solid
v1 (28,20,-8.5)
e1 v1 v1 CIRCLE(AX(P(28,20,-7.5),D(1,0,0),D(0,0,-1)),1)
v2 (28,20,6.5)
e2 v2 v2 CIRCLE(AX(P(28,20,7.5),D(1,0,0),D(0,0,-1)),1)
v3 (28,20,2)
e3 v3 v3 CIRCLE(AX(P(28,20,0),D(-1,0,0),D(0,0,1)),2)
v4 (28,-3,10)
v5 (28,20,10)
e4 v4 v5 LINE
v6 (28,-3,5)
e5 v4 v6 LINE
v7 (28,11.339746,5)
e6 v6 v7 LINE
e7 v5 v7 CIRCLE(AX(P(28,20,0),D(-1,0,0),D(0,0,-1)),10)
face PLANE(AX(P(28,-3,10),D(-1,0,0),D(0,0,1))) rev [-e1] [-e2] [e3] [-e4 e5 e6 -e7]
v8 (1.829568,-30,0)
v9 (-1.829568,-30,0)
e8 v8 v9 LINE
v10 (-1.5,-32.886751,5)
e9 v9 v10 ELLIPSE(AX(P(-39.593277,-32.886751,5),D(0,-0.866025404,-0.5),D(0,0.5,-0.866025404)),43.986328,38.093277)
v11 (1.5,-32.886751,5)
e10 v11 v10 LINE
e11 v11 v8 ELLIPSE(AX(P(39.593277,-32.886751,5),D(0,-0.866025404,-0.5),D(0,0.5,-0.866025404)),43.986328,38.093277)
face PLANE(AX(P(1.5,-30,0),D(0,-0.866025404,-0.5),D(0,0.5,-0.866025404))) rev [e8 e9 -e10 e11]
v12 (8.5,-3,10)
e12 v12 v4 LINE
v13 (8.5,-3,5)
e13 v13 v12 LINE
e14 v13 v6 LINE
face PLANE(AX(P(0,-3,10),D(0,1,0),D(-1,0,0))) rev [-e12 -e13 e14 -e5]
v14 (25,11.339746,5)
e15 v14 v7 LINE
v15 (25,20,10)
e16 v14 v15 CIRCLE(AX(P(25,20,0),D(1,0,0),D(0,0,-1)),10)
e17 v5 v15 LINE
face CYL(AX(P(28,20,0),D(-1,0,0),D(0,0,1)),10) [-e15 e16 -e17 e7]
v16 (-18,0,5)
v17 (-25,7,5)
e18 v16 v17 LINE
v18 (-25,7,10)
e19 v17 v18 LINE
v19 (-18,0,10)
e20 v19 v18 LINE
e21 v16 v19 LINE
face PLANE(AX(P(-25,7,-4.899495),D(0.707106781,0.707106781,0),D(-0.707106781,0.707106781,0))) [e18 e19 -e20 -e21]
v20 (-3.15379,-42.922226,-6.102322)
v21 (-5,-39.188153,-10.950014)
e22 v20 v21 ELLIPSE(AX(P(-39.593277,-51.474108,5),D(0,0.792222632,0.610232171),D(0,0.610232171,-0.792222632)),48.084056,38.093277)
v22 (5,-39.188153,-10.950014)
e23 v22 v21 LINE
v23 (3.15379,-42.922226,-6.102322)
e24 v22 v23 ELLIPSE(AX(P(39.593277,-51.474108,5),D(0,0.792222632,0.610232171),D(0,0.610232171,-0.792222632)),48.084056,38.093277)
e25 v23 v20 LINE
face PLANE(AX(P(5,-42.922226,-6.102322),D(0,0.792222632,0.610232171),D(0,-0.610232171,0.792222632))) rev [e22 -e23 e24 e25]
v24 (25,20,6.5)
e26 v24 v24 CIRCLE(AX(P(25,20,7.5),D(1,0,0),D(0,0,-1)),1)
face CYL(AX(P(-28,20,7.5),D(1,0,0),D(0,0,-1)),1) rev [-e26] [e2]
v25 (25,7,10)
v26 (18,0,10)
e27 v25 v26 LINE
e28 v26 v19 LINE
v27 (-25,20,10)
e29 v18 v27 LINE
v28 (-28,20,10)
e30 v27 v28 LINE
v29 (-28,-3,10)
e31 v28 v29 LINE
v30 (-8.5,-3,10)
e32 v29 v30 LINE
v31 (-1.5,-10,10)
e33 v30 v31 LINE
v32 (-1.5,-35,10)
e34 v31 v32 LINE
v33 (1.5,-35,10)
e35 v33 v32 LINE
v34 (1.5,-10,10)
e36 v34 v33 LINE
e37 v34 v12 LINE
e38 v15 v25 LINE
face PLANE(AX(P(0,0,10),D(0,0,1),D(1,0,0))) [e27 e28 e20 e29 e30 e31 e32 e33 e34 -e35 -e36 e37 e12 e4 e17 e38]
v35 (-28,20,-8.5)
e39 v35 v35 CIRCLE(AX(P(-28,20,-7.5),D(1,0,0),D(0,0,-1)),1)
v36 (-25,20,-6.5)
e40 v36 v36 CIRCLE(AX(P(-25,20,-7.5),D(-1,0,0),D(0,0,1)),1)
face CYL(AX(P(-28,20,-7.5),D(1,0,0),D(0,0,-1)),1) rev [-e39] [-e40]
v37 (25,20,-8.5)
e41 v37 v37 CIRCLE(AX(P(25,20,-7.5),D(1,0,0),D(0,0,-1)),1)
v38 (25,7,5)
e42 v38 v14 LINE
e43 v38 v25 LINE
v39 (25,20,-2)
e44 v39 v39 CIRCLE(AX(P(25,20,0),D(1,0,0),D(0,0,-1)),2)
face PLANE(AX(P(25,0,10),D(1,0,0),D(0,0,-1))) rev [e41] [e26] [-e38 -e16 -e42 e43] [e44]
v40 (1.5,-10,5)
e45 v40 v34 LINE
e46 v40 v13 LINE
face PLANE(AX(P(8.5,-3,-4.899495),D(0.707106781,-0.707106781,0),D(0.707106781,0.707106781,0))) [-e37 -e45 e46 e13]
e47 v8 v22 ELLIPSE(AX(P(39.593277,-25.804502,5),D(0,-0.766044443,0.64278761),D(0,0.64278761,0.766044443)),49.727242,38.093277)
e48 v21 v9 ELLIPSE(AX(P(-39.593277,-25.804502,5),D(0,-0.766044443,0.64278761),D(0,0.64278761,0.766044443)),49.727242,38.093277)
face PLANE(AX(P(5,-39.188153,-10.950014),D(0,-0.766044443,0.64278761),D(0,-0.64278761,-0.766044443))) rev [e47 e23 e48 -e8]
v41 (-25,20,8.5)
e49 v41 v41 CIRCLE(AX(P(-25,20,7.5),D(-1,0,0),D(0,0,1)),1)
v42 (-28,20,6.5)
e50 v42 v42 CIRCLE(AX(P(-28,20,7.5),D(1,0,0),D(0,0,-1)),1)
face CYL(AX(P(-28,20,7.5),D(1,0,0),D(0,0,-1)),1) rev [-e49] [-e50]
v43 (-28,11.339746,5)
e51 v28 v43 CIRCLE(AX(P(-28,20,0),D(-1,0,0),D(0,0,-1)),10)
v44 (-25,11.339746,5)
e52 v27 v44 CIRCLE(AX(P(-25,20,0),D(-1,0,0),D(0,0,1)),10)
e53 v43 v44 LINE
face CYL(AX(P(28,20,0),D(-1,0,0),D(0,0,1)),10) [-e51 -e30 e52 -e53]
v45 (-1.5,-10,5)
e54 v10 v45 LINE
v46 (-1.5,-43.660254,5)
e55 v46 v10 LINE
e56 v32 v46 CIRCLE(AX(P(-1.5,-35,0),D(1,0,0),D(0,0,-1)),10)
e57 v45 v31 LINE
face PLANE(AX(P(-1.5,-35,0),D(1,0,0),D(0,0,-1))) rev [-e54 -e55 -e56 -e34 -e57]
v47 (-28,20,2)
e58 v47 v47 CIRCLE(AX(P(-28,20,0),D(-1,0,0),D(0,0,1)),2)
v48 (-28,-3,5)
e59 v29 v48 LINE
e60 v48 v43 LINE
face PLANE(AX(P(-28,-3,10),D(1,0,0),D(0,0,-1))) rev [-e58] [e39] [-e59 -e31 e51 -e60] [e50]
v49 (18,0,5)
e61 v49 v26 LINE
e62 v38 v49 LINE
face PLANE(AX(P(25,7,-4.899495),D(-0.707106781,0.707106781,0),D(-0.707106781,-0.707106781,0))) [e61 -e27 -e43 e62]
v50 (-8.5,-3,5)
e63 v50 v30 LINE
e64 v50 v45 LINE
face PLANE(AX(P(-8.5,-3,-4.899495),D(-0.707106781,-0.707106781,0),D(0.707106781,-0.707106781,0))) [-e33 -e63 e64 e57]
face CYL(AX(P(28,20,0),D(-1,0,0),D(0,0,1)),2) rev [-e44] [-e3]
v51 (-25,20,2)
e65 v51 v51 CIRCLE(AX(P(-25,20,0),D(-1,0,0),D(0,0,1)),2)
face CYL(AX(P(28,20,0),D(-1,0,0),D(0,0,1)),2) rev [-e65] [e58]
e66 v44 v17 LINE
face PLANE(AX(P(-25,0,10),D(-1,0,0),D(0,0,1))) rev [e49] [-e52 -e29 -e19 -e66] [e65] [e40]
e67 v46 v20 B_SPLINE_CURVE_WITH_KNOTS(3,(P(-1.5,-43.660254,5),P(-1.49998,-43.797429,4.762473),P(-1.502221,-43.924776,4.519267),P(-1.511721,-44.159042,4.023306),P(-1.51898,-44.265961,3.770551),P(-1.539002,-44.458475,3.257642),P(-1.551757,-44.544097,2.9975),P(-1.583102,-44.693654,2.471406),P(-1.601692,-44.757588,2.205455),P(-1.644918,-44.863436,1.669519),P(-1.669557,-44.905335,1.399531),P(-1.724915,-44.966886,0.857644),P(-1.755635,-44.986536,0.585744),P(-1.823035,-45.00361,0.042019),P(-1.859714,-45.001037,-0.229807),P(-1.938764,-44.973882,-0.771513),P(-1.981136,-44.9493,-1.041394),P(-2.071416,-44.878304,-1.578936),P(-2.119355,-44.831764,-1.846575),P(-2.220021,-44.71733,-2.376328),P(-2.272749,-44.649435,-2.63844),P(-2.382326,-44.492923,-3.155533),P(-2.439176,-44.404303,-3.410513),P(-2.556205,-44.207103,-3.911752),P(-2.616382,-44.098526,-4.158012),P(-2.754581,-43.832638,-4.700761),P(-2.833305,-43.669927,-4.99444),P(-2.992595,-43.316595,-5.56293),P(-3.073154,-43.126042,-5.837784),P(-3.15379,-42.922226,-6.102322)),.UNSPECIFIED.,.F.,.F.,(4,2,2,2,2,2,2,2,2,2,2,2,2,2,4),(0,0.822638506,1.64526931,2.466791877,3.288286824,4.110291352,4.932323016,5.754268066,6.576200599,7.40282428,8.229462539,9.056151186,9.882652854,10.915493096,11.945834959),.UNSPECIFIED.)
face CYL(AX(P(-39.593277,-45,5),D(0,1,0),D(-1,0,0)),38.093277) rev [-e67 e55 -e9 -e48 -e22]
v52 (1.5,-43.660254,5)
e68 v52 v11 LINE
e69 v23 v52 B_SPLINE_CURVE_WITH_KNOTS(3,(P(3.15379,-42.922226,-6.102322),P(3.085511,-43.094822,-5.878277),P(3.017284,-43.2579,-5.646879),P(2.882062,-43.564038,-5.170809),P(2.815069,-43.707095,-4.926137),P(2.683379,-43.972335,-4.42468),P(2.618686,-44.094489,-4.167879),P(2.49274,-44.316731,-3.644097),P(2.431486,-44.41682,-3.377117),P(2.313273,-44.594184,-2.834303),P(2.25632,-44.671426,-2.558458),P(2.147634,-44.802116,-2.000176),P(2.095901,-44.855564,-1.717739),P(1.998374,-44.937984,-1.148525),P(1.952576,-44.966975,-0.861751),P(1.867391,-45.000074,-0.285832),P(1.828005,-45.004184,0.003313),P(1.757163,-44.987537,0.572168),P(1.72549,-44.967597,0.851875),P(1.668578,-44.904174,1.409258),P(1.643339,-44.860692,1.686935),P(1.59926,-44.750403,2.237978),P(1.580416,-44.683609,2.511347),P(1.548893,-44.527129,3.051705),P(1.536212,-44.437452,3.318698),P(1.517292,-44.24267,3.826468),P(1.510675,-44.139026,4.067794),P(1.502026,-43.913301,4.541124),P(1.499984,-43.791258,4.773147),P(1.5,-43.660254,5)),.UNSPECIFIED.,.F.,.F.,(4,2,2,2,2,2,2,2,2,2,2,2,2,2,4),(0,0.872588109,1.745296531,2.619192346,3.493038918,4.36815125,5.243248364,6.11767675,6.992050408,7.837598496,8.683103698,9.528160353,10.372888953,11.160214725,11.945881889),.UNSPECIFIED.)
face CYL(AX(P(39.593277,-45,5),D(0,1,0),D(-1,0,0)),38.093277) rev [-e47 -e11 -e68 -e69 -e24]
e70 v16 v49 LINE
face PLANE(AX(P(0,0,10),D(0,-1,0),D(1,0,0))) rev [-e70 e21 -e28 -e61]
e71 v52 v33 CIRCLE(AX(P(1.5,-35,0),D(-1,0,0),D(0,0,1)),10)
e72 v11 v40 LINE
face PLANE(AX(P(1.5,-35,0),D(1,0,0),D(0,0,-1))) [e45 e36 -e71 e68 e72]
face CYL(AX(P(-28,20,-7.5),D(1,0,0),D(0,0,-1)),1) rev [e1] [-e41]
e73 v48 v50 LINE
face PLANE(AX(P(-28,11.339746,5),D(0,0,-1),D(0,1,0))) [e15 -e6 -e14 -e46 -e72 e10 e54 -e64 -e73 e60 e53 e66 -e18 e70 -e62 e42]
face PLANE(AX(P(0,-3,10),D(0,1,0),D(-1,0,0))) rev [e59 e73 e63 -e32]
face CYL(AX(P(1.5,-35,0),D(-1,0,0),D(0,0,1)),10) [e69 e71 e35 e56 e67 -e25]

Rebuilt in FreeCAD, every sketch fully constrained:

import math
import FreeCAD as App
import Part
import Sketcher

V = App.Vector
Q = App.Units.Quantity


def add_polygon(sketch, points):
    """Adds a closed chain of lines whose ends are joined by coincident constraints."""
    first, n = sketch.GeometryCount, len(points)
    for a, b in zip(points, points[1:] + points[:1]):
        sketch.addGeometry(Part.LineSegment(App.Vector(*a, 0), App.Vector(*b, 0)), False)
    for i in range(n):
        sketch.addConstraint(Sketcher.Constraint("Coincident", first + i, 2, first + (i + 1) % n, 1))

doc = App.newDocument("Part")
body = doc.addObject("PartDesign::Body", "Body")

sketch1 = body.newObject("Sketcher::SketchObject", "Sketch")
sketch1.AttachmentSupport = (doc.getObject("XY_Plane"), [""])
sketch1.MapMode = "FlatFace"
add_polygon(sketch1, [(-25, 0), (-25, 30), (-28, 30), (-28, -3), (28, -3), (28, 30), (25, 30), (25, 0)])
sketch1.addConstraint([
    Sketcher.Constraint("Vertical", 0),
    Sketcher.Constraint("Horizontal", 1),
    Sketcher.Constraint("Vertical", 2),
    Sketcher.Constraint("Horizontal", 3),
    Sketcher.Constraint("Vertical", 4),
    Sketcher.Constraint("Horizontal", 5),
    Sketcher.Constraint("Vertical", 6),
    Sketcher.Constraint("Horizontal", 7),
    Sketcher.Constraint("Symmetric", 6, 2, 7, 2, -1, 1),
    Sketcher.Constraint("Symmetric", 1, 2, 4, 2, -2),
    Sketcher.Constraint("DistanceX", 1, 2, 1, 1, 3.0),
    Sketcher.Constraint("DistanceX", 3, 1, 3, 2, 56.0),
    Sketcher.Constraint("DistanceY", 0, 1, 0, 2, 30.0),
    Sketcher.Constraint("DistanceY", 2, 2, 2, 1, 33.0),
])
pad1 = body.newObject("PartDesign::Pad", "Pad")
pad1.Profile = sketch1
pad1.Length = 20
pad1.Midplane = True

sketch2 = body.newObject("Sketcher::SketchObject", "Sketch001")
sketch2.AttachmentSupport = (doc.getObject("YZ_Plane"), [""])
sketch2.MapMode = "FlatFace"
sketch2.AttachmentOffset = App.Placement(V(0, 0, -28), App.Rotation())
add_polygon(sketch2, [(37.8, -17.8), (-10.8, -17.8), (-10.8, 17.8), (37.8, 17.8)])
sketch2.addGeometry(Part.LineSegment(V(20, 10, 0), V(-3, 10, 0)), False)
sketch2.addGeometry(Part.LineSegment(V(-3, 10, 0), V(-3, -10, 0)), False)
sketch2.addGeometry(Part.LineSegment(V(-3, -10, 0), V(20, -10, 0)), False)
sketch2.addGeometry(Part.ArcOfCircle(Part.Circle(V(20, 0, 0), V(0, 0, 1), 10), math.radians(-90), math.radians(90)), False)
sketch2.addGeometry(Part.Circle(V(20, 0, 0), V(0, 0, 1), 2), False)
sketch2.addConstraint([
    Sketcher.Constraint("Coincident", 4, 2, 5, 1),
    Sketcher.Constraint("Coincident", 5, 2, 6, 1),
    Sketcher.Constraint("Tangent", 6, 2, 7, 1),
    Sketcher.Constraint("Tangent", 7, 2, 4, 1),
    Sketcher.Constraint("Horizontal", 0),
    Sketcher.Constraint("Vertical", 1),
    Sketcher.Constraint("Horizontal", 2),
    Sketcher.Constraint("Vertical", 3),
    Sketcher.Constraint("Horizontal", 4),
    Sketcher.Constraint("Vertical", 5),
    Sketcher.Constraint("Horizontal", 6),
    Sketcher.Constraint("Coincident", 8, 3, 7, 3),
    Sketcher.Constraint("PointOnObject", 7, 3, -1),
    Sketcher.Constraint("Diameter", 8, 4.0),
    Sketcher.Constraint("Radius", 7, 10.0),
    Sketcher.Constraint("DistanceX", 4, 2, 4, 1, 23.0),
    Sketcher.Constraint("DistanceX", -1, 1, 7, 3, 20.0),
    Sketcher.Constraint("DistanceX", 0, 2, 0, 1, 48.602),
    Sketcher.Constraint("DistanceY", 1, 1, 1, 2, 35.602),
    Sketcher.Constraint("DistanceX", 0, 2, -1, 1, 10.801),
    Sketcher.Constraint("DistanceY", 0, 2, -1, 1, 17.801),
])
pocket1 = body.newObject("PartDesign::Pocket", "Pocket")
pocket1.Profile = sketch2
pocket1.Length = 65.311741
pocket1.Reversed = True

sketch3 = body.newObject("Sketcher::SketchObject", "Sketch002")
sketch3.AttachmentSupport = (doc.getObject("YZ_Plane"), [""])
sketch3.MapMode = "FlatFace"
sketch3.AttachmentOffset = App.Placement(V(0, 0, 28), App.Rotation())
add_polygon(sketch3, [(38, 18), (-11, 18), (-11, -18), (38, -18)])
sketch3.addGeometry(Part.ArcOfCircle(Part.Circle(V(20, 0, 0), V(0, 0, 1), 10), math.radians(150), math.radians(450)), False)
sketch3.addGeometry(Part.LineSegment(V(11, 5, 0), V(-3, 5, 0)), False)
sketch3.addGeometry(Part.LineSegment(V(-3, 5, 0), V(-3, 10, 0)), False)
sketch3.addGeometry(Part.LineSegment(V(-3, 10, 0), V(20, 10, 0)), False)
sketch3.addConstraint([
    Sketcher.Constraint("Coincident", 4, 1, 5, 1),
    Sketcher.Constraint("Coincident", 5, 2, 6, 1),
    Sketcher.Constraint("Coincident", 6, 2, 7, 1),
    Sketcher.Constraint("Tangent", 7, 2, 4, 2),
    Sketcher.Constraint("Horizontal", 0),
    Sketcher.Constraint("Vertical", 1),
    Sketcher.Constraint("Horizontal", 2),
    Sketcher.Constraint("Vertical", 3),
    Sketcher.Constraint("Horizontal", 5),
    Sketcher.Constraint("Vertical", 6),
    Sketcher.Constraint("Horizontal", 7),
    Sketcher.Constraint("PointOnObject", 4, 3, -1),
    Sketcher.Constraint("Radius", 4, 10.0),
    Sketcher.Constraint("DistanceX", 7, 1, 7, 2, 23.0),
    Sketcher.Constraint("DistanceY", 6, 1, 6, 2, 5.0),
    Sketcher.Constraint("DistanceX", -1, 1, 4, 3, 20.0),
    Sketcher.Constraint("DistanceX", 0, 2, 0, 1, 48.602),
    Sketcher.Constraint("DistanceY", 1, 2, 1, 1, 35.602),
    Sketcher.Constraint("DistanceX", 0, 2, -1, 1, 10.801),
    Sketcher.Constraint("DistanceY", -1, 1, 0, 2, 17.801),
])
pocket2 = body.newObject("PartDesign::Pocket", "Pocket001")
pocket2.Profile = sketch3
pocket2.Type = "ThroughAll"

sketch4 = body.newObject("Sketcher::SketchObject", "Sketch003")
sketch4.AttachmentSupport = (doc.getObject("YZ_Plane"), [""])
sketch4.MapMode = "FlatFace"
sketch4.addGeometry([
    Part.LineSegment(V(-3, 5, 0), V(-3, 10, 0)),
    Part.LineSegment(V(-3, 10, 0), V(-35, 10, 0)),
    Part.ArcOfCircle(Part.Circle(V(-35, 0, 0), V(0, 0, 1), 10), math.radians(90), math.radians(180)),
    Part.LineSegment(V(-45, 0, 0), V(-30, 0, 0)),
    Part.LineSegment(V(-30, 0, 0), V(-33, 5, 0)),
    Part.LineSegment(V(-33, 5, 0), V(-3, 5, 0)),
], False)
sketch4.addConstraint([
    Sketcher.Constraint("Coincident", 0, 2, 1, 1),
    Sketcher.Constraint("Tangent", 1, 2, 2, 1),
    Sketcher.Constraint("Coincident", 2, 2, 3, 1),
    Sketcher.Constraint("Coincident", 3, 2, 4, 1),
    Sketcher.Constraint("Coincident", 4, 2, 5, 1),
    Sketcher.Constraint("Coincident", 5, 2, 0, 1),
    Sketcher.Constraint("Vertical", 0),
    Sketcher.Constraint("Horizontal", 1),
    Sketcher.Constraint("Horizontal", 3),
    Sketcher.Constraint("Horizontal", 5),
    Sketcher.Constraint("PointOnObject", 2, 3, -1),
    Sketcher.Constraint("PointOnObject", 2, 2, -1),
    Sketcher.Constraint("Radius", 2, 9.999999),
    Sketcher.Constraint("DistanceX", 1, 2, 1, 1, 32.0),
    Sketcher.Constraint("DistanceX", 3, 1, 3, 2, 15.0),
    Sketcher.Constraint("DistanceY", 0, 1, 0, 2, 5.0),
    Sketcher.Constraint("Angle", 4, Q("119.999997 deg")),
    Sketcher.Constraint("DistanceX", 2, 3, -1, 1, 35.000001),
])
pad2 = body.newObject("PartDesign::Pad", "Pad001")
pad2.Profile = sketch4
pad2.Length = 3
pad2.Midplane = True

sketch5 = body.newObject("Sketcher::SketchObject", "Sketch004")
sketch5.AttachmentSupport = (doc.getObject("YZ_Plane"), [""])
sketch5.MapMode = "FlatFace"
sketch5.addGeometry([
    Part.LineSegment(V(-30, 0, 0), V(-32.9, 5, 0)),
    Part.LineSegment(V(-32.9, 5, 0), V(-32.9, 10, 0)),
    Part.LineSegment(V(-32.9, 10, 0), V(-35, 10, 0)),
    Part.ArcOfCircle(Part.Circle(V(-35, 0, 0), V(0, 0, 1), 10), math.radians(90), math.radians(218)),
    Part.LineSegment(V(-42.9, -6.1, 0), V(-39.2, -11, 0)),
    Part.LineSegment(V(-39.2, -11, 0), V(-30, 0, 0)),
], False)
sketch5.addConstraint([
    Sketcher.Constraint("Coincident", 0, 2, 1, 1),
    Sketcher.Constraint("Coincident", 1, 2, 2, 1),
    Sketcher.Constraint("Tangent", 2, 2, 3, 1),
    Sketcher.Constraint("Tangent", 3, 2, 4, 1),
    Sketcher.Constraint("Coincident", 4, 2, 5, 1),
    Sketcher.Constraint("Coincident", 5, 2, 0, 1),
    Sketcher.Constraint("Vertical", 1),
    Sketcher.Constraint("Horizontal", 2),
    Sketcher.Constraint("PointOnObject", 3, 3, -1),
    Sketcher.Constraint("PointOnObject", 5, 2, -1),
    Sketcher.Constraint("Radius", 3, 10.0),
    Sketcher.Constraint("DistanceY", 1, 1, 1, 2, 5.0),
    Sketcher.Constraint("Angle", 0, Q("119.999997 deg")),
    Sketcher.Constraint("Angle", 5, Q("49.999999 deg")),
    Sketcher.Constraint("DistanceX", 3, 3, -1, 1, 35.0),
    Sketcher.Constraint("DistanceX", 5, 2, -1, 1, 30.0),
    Sketcher.Constraint("Distance", 5, 14.294228),
])
pad3 = body.newObject("PartDesign::Pad", "Pad002")
pad3.Profile = sketch5
pad3.Length = 10
pad3.Midplane = True

sketch6 = body.newObject("Sketcher::SketchObject", "Sketch005")
sketch6.AttachmentSupport = (doc.getObject("XZ_Plane"), [""])
sketch6.MapMode = "FlatFace"
sketch6.AttachmentOffset = App.Placement(V(0, 0, 3), App.Rotation())
add_polygon(sketch6, [(-38.6, 20.6), (-38.6, -21.5), (38.6, -21.5), (38.6, 20.6)])
sketch6.addGeometry(Part.LineSegment(V(-1.5, 5, 0), V(-1.5, 10, 0)), False)
sketch6.addGeometry(Part.LineSegment(V(-1.5, 10, 0), V(1.5, 10, 0)), False)
sketch6.addGeometry(Part.LineSegment(V(1.5, 10, 0), V(1.5, 5, 0)), False)
sketch6.addGeometry(Part.ArcOfCircle(Part.Circle(V(39.6, 5, 0), V(0, 0, 1), 38.1), math.radians(180), math.radians(205)), False)
sketch6.addGeometry(Part.LineSegment(V(5, -11, 0), V(-5, -11, 0)), False)
sketch6.addGeometry(Part.ArcOfCircle(Part.Circle(V(-39.6, 5, 0), V(0, 0, 1), 38.1), math.radians(-25), math.radians(0)), False)
sketch6.addConstraint([
    Sketcher.Constraint("Coincident", 4, 2, 5, 1),
    Sketcher.Constraint("Coincident", 5, 2, 6, 1),
    Sketcher.Constraint("Tangent", 6, 2, 7, 1),
    Sketcher.Constraint("Coincident", 7, 2, 8, 1),
    Sketcher.Constraint("Coincident", 8, 2, 9, 1),
    Sketcher.Constraint("Tangent", 9, 2, 4, 1),
    Sketcher.Constraint("Vertical", 0),
    Sketcher.Constraint("Horizontal", 1),
    Sketcher.Constraint("Vertical", 2),
    Sketcher.Constraint("Horizontal", 3),
    Sketcher.Constraint("Vertical", 4),
    Sketcher.Constraint("Horizontal", 5),
    Sketcher.Constraint("Vertical", 6),
    Sketcher.Constraint("Horizontal", 8),
    Sketcher.Constraint("Equal", 7, 9),
    Sketcher.Constraint("Symmetric", 7, 3, 9, 3, -2),
    Sketcher.Constraint("DistanceX", 5, 1, 5, 2, 3.0),
    Sketcher.Constraint("DistanceX", 8, 2, 8, 1, 10.0),
    Sketcher.Constraint("DistanceY", 4, 1, 4, 2, 5.0),
    Sketcher.Constraint("DistanceY", -1, 1, 7, 3, 4.999999),
    Sketcher.Constraint("DistanceX", 1, 1, 1, 2, 77.184),
    Sketcher.Constraint("DistanceY", 0, 2, 0, 1, 42.134),
    Sketcher.Constraint("DistanceX", 0, 2, -1, 1, 38.592),
    Sketcher.Constraint("DistanceY", 0, 2, -1, 1, 21.542),
    Sketcher.Constraint("Radius", 7, 38.093275),
])
pocket3 = body.newObject("PartDesign::Pocket", "Pocket002")
pocket3.Profile = sketch6
pocket3.Type = "ThroughAll"
pocket3.Reversed = True

sketch7 = body.newObject("Sketcher::SketchObject", "Sketch006")
sketch7.AttachmentSupport = (doc.getObject("YZ_Plane"), [""])
sketch7.MapMode = "FlatFace"
sketch7.AttachmentOffset = App.Placement(V(0, 0, 28), App.Rotation())
sketch7.addGeometry([
    Part.Circle(V(20, 7.5, 0), V(0, 0, 1), 1),
    Part.Circle(V(20, -7.5, 0), V(0, 0, 1), 1),
], False)
sketch7.addConstraint([
    Sketcher.Constraint("Equal", 0, 1),
    Sketcher.Constraint("Symmetric", 0, 3, 1, 3, -1),
    Sketcher.Constraint("Diameter", 0, 2.0),
    Sketcher.Constraint("DistanceX", -1, 1, 0, 3, 20.0),
    Sketcher.Constraint("DistanceY", 1, 3, 0, 3, 15.0),
])
pocket4 = body.newObject("PartDesign::Pocket", "Pocket003")
pocket4.Profile = sketch7
pocket4.Type = "ThroughAll"

sketch8 = body.newObject("Sketcher::SketchObject", "Sketch007")
sketch8.AttachmentSupport = (doc.getObject("XY_Plane"), [""])
sketch8.MapMode = "FlatFace"
sketch8.AttachmentOffset = App.Placement(V(0, 0, 10), App.Rotation())
add_polygon(sketch8, [(-25, 7), (-25, 0), (-18, 0)])
add_polygon(sketch8, [(-2, -3), (-8, -3), (-2, -10)])
add_polygon(sketch8, [(2, -3), (2, -10), (8, -3)])
add_polygon(sketch8, [(18, 0), (25, 0), (25, 7)])
sketch8.addConstraint([
    Sketcher.Constraint("Vertical", 0),
    Sketcher.Constraint("Horizontal", 1),
    Sketcher.Constraint("Horizontal", 3),
    Sketcher.Constraint("Vertical", 5),
    Sketcher.Constraint("Vertical", 6),
    Sketcher.Constraint("Horizontal", 8),
    Sketcher.Constraint("Horizontal", 9),
    Sketcher.Constraint("Vertical", 10),
    Sketcher.Constraint("Symmetric", 0, 2, 9, 2, -1, 1),
    Sketcher.Constraint("Symmetric", 4, 2, 6, 2, -2),
    Sketcher.Constraint("Symmetric", 3, 2, 7, 2, -2),
    Sketcher.Constraint("Symmetric", 1, 2, 11, 2, -2),
    Sketcher.Constraint("Parallel", 2, 4),
    Sketcher.Constraint("Perpendicular", 4, 7),
    Sketcher.Constraint("Parallel", 7, 11),
    Sketcher.Constraint("Equal", 1, 3),
    Sketcher.Constraint("DistanceX", 1, 1, 1, 2, 7.0),
    Sketcher.Constraint("DistanceX", 0, 2, -1, 1, 25.0),
    Sketcher.Constraint("DistanceY", 3, 2, -1, 1, 3.0),
    Sketcher.Constraint("DistanceX", 4, 2, 6, 2, 3.0),
])
pad4 = body.newObject("PartDesign::Pad", "Pad003")
pad4.Profile = sketch8
pad4.Length = 5
pad4.Reversed = True

doc.recompute()
